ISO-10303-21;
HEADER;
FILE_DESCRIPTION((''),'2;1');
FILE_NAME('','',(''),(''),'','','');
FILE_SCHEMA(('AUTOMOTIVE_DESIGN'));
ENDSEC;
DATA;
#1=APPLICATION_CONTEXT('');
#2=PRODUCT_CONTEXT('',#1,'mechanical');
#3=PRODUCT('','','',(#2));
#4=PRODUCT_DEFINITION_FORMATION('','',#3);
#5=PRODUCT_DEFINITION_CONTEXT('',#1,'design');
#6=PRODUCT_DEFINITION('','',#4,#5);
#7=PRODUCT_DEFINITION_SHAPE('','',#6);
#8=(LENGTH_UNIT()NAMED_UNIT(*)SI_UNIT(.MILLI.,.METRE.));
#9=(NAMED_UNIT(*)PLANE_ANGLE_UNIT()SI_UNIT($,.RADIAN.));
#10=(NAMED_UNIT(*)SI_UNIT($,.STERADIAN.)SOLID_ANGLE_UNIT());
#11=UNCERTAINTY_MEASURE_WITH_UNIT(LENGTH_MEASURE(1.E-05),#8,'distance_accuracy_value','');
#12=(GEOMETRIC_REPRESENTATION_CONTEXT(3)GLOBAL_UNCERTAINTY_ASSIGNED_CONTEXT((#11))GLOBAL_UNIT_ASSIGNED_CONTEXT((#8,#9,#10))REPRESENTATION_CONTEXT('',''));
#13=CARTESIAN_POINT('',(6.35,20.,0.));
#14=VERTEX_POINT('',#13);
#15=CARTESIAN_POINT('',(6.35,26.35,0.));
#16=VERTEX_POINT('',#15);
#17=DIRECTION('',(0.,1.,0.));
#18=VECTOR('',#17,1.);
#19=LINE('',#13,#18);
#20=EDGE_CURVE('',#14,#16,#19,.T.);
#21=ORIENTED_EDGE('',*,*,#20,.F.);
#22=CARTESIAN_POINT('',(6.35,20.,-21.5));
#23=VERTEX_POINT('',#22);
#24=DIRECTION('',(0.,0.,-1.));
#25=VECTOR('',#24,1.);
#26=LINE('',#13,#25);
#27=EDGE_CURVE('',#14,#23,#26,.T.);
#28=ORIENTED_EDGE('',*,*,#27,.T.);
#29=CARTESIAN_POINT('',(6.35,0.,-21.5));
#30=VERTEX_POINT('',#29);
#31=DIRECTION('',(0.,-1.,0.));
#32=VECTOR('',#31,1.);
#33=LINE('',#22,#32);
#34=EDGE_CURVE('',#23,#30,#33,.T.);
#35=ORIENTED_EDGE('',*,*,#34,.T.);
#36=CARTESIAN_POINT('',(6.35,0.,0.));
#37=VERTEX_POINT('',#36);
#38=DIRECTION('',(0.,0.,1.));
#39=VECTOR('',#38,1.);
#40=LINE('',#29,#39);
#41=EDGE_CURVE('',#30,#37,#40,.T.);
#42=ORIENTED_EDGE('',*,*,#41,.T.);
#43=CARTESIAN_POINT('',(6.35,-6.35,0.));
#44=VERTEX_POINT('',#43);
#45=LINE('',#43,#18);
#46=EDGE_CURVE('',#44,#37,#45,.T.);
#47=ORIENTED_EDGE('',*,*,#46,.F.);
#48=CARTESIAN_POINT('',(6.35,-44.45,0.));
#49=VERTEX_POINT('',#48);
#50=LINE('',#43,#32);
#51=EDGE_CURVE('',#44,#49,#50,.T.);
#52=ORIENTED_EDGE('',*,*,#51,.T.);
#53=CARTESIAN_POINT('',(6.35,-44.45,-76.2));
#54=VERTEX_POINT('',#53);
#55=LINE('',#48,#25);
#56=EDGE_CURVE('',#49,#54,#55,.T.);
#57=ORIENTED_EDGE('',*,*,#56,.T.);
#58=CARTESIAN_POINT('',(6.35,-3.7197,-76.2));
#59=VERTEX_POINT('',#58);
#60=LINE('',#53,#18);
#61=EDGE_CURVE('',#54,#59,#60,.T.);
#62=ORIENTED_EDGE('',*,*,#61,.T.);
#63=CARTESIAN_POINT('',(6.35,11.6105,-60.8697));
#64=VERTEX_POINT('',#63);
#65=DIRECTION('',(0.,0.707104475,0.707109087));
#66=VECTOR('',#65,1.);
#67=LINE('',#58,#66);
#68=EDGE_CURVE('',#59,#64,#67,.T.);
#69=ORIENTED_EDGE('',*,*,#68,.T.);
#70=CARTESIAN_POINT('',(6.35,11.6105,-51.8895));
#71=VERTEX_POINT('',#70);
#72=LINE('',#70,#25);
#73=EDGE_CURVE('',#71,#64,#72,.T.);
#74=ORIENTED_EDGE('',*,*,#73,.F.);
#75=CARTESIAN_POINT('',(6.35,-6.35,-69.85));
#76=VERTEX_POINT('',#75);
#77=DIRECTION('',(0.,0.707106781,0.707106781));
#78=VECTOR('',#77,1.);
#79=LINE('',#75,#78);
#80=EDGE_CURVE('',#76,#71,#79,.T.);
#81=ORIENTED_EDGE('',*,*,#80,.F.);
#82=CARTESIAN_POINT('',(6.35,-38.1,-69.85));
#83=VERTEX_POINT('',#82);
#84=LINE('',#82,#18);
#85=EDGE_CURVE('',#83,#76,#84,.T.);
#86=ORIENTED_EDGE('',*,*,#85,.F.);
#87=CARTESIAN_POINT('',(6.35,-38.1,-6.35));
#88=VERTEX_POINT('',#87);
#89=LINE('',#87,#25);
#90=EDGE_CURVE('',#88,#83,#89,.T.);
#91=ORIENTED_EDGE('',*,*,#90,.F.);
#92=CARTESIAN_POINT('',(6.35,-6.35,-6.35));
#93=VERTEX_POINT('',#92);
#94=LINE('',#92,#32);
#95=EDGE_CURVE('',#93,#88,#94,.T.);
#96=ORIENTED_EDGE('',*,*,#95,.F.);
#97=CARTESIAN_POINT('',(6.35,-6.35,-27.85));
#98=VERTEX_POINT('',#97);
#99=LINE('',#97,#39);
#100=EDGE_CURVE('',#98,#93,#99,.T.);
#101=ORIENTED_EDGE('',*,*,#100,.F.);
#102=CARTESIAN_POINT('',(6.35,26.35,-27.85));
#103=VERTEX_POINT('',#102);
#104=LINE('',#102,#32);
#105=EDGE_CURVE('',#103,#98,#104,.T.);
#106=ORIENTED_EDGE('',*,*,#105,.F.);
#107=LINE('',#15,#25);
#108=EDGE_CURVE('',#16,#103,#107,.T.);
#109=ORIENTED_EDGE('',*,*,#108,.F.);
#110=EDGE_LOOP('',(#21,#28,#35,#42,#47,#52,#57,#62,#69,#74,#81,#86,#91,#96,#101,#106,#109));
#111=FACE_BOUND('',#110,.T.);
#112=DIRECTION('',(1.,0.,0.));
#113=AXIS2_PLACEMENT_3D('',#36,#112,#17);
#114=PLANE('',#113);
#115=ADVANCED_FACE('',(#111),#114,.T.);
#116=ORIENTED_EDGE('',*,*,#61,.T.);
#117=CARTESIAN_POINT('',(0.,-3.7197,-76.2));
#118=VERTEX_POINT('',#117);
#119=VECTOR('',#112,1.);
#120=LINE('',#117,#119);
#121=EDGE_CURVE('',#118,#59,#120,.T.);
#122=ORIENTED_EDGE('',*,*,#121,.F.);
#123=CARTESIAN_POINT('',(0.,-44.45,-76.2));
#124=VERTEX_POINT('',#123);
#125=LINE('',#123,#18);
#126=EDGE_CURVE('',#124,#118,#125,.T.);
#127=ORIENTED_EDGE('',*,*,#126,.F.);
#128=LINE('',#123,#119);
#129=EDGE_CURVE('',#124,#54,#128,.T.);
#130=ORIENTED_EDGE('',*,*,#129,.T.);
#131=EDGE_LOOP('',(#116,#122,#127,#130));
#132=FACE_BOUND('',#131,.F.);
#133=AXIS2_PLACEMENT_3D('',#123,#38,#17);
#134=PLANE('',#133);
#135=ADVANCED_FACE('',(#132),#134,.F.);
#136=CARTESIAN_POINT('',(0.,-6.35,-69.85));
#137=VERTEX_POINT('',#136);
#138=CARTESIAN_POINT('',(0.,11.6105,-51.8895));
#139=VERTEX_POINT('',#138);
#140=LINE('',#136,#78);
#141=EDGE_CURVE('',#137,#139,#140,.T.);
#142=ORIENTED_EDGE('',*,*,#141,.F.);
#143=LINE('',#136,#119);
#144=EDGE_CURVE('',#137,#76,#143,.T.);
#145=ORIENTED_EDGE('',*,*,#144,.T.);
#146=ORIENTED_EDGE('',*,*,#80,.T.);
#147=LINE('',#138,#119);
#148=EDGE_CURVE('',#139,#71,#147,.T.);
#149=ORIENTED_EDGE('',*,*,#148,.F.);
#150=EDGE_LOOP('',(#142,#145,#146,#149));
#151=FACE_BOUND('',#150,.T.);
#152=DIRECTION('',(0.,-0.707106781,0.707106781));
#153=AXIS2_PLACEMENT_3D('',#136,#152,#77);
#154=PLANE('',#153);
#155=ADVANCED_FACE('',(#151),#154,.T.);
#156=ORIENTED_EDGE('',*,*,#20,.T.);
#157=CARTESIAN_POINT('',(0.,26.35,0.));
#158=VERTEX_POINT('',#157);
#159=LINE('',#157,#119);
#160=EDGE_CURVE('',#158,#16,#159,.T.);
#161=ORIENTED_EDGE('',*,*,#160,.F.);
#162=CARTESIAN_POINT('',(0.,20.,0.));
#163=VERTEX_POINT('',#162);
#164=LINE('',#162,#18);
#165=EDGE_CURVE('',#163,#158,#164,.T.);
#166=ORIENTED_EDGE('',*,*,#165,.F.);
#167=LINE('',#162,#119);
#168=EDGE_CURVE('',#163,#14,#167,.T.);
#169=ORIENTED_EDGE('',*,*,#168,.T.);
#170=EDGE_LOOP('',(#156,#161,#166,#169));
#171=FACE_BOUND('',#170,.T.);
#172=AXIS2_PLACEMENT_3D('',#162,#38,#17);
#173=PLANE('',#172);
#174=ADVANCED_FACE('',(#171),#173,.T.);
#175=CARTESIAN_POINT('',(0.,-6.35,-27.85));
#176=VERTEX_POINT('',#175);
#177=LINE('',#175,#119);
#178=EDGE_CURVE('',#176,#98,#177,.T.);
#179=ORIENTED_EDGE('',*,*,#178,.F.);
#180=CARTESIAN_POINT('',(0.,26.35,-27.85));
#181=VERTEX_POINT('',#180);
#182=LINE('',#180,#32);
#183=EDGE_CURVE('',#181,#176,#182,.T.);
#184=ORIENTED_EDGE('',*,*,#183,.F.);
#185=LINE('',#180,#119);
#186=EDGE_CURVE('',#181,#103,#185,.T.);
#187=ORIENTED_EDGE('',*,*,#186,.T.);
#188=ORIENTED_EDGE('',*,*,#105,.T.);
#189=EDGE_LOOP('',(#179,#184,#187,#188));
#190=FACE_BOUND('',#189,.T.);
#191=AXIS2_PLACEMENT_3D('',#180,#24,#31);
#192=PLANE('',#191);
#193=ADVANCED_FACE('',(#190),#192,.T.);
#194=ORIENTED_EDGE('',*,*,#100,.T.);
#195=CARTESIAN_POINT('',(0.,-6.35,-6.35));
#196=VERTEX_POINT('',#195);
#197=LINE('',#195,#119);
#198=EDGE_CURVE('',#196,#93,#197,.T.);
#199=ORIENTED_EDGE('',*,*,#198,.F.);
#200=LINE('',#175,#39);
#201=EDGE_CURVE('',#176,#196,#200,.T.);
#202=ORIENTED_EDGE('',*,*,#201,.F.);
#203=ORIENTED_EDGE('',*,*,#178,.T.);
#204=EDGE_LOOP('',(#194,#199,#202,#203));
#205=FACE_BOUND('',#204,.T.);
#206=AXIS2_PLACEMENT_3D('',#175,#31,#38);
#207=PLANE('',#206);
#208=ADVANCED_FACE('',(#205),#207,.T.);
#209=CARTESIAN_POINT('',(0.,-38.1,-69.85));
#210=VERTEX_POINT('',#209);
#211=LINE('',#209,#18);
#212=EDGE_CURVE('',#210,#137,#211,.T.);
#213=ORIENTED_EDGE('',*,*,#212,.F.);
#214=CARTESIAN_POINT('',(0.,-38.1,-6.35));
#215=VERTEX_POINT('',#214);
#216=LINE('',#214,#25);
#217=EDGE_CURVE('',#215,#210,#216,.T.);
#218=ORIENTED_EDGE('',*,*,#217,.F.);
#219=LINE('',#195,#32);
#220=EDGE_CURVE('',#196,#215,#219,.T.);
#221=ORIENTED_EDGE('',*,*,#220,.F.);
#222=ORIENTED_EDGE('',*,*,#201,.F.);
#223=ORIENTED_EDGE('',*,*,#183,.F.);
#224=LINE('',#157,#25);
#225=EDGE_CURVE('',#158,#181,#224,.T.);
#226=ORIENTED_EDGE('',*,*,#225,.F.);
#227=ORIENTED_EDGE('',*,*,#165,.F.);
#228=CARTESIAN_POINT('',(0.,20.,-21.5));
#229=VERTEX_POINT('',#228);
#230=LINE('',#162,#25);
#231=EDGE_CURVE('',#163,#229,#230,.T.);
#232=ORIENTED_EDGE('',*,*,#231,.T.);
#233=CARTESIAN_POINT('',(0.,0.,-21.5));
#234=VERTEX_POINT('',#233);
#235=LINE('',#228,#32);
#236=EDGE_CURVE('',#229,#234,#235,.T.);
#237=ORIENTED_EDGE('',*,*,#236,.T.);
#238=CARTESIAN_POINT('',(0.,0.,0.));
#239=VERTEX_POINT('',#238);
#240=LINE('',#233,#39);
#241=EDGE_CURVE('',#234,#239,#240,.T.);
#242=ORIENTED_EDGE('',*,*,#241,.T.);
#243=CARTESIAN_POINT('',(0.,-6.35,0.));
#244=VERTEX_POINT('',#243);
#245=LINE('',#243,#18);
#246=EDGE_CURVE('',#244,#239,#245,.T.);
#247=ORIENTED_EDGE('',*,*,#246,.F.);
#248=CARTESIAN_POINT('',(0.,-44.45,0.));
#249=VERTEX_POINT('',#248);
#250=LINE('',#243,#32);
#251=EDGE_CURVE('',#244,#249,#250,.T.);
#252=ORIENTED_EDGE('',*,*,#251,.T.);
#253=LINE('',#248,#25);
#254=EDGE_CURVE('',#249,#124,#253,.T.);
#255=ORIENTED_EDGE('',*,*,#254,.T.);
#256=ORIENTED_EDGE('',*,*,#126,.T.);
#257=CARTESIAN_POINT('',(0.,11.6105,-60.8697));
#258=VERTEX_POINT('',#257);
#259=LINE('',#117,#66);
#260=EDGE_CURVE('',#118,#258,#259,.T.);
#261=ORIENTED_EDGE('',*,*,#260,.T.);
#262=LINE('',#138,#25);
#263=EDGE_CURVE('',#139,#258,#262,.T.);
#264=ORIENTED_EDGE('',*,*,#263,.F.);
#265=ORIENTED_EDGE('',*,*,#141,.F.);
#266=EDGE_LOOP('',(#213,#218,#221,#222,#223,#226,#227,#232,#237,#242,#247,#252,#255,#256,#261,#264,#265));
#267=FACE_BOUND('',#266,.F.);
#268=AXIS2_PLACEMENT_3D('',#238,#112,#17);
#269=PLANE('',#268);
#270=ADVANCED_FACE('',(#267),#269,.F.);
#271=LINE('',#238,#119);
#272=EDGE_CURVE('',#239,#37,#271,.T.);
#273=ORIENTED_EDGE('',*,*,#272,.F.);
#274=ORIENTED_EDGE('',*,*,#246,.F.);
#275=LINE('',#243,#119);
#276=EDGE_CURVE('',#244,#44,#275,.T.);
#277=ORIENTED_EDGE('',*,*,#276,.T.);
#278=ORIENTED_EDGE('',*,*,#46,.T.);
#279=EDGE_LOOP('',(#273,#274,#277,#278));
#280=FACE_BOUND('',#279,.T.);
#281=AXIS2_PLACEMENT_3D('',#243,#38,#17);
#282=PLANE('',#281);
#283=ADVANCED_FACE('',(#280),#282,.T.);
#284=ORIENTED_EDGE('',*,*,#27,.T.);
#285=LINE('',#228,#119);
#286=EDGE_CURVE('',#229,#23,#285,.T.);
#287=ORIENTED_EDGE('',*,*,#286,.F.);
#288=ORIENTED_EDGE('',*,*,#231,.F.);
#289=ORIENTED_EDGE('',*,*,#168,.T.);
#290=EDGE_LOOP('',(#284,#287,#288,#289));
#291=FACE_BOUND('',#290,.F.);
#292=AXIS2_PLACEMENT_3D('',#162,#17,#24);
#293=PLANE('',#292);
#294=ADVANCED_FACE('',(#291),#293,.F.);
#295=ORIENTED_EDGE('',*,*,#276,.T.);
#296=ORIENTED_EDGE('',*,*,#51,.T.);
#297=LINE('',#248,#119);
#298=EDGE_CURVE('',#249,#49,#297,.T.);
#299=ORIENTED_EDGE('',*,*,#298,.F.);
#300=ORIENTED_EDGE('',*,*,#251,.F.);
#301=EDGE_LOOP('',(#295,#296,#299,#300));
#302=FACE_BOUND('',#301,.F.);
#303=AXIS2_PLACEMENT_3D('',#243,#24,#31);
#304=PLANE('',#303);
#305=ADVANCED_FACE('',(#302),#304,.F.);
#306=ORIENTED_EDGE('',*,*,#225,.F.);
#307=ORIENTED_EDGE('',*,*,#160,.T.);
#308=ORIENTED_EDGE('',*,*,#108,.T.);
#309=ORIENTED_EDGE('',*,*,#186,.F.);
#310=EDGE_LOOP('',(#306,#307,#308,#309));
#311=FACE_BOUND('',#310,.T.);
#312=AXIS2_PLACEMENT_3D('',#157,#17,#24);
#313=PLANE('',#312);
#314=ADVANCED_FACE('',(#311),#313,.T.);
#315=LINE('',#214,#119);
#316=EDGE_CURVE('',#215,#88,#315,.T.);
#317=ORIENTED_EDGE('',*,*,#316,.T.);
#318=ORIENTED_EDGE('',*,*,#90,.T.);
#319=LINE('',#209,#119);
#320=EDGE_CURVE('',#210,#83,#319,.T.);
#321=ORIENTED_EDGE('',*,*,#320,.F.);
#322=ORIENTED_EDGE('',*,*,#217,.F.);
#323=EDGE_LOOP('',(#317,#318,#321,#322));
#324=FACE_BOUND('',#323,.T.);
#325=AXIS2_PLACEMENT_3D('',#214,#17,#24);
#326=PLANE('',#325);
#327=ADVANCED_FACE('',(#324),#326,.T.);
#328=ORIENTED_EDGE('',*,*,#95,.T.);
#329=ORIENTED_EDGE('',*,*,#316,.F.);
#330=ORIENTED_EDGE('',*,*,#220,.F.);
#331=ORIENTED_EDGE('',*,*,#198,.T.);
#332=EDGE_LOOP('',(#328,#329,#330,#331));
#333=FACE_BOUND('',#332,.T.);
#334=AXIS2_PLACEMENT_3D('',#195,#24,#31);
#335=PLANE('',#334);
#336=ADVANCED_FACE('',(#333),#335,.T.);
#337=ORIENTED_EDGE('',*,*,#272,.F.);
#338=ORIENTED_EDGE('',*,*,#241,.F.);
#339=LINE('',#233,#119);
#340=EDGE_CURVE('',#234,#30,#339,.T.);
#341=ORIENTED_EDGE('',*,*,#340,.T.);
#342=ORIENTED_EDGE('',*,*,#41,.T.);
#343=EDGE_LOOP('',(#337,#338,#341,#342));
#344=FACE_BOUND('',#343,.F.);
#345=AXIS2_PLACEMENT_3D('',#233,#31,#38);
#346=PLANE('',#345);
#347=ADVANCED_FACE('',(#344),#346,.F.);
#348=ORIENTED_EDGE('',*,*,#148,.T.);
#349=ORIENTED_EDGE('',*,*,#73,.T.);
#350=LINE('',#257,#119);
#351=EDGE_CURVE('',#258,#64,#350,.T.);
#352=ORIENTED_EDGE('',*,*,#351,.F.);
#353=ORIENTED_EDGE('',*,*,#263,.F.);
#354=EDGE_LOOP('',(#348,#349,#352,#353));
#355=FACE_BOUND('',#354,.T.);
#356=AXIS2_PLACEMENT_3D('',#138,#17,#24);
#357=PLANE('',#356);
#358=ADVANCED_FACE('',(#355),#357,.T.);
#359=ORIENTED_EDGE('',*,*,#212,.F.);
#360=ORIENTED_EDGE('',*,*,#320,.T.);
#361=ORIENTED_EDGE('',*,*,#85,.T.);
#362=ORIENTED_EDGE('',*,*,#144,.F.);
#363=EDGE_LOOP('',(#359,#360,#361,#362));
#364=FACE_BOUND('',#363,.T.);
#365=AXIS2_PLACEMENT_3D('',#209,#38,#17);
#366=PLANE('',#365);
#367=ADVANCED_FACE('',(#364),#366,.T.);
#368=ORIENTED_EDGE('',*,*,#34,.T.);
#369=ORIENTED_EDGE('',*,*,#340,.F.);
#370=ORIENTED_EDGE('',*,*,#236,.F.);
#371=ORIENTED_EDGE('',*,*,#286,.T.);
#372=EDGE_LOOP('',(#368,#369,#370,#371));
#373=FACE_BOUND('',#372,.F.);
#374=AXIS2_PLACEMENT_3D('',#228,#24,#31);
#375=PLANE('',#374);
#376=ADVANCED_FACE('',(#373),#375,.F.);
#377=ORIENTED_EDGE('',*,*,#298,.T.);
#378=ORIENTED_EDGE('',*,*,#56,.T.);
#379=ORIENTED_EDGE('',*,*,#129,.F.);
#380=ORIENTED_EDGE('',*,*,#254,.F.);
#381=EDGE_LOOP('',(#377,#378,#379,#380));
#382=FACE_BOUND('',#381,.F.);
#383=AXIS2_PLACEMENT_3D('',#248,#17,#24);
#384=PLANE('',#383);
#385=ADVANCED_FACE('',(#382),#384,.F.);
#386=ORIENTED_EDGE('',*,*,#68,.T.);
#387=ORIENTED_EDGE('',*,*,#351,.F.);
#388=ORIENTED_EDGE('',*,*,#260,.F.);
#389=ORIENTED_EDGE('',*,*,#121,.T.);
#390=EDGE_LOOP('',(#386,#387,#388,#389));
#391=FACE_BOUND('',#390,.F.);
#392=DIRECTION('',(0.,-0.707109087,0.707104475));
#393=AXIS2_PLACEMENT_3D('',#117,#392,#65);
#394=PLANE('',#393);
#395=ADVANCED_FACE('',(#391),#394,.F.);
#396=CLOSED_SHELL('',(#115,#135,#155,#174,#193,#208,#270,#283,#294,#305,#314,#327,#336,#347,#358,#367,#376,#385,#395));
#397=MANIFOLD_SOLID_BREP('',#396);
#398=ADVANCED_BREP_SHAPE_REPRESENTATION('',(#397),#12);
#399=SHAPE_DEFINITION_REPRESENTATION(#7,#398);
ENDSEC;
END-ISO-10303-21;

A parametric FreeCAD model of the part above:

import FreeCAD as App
import Part
import Sketcher

V = App.Vector
Q = App.Units.Quantity

doc = App.newDocument("Part")
body = doc.addObject("PartDesign::Body", "Body")

sketch1 = body.newObject("Sketcher::SketchObject", "Sketch")
sketch1.AttachmentSupport = (doc.getObject("YZ_Plane"), [""])
sketch1.MapMode = "FlatFace"
sketch1.addGeometry([
    Part.LineSegment(V(26, 0, 0), V(20, 0, 0)),
    Part.LineSegment(V(20, 0, 0), V(20, -22, 0)),
    Part.LineSegment(V(20, -22, 0), V(0, -22, 0)),
    Part.LineSegment(V(0, -22, 0), V(0, 0, 0)),
    Part.LineSegment(V(0, 0, 0), V(-44, 0, 0)),
    Part.LineSegment(V(-44, 0, 0), V(-44, -76, 0)),
    Part.LineSegment(V(-44, -76, 0), V(-4, -76, 0)),
    Part.LineSegment(V(-4, -76, 0), V(12, -61, 0)),
    Part.LineSegment(V(12, -61, 0), V(12, -52, 0)),
    Part.LineSegment(V(12, -52, 0), V(-6, -70, 0)),
    Part.LineSegment(V(-6, -70, 0), V(-38, -70, 0)),
    Part.LineSegment(V(-38, -70, 0), V(-38, -6, 0)),
    Part.LineSegment(V(-38, -6, 0), V(-6, -6, 0)),
    Part.LineSegment(V(-6, -6, 0), V(-6, -28, 0)),
    Part.LineSegment(V(-6, -28, 0), V(26, -28, 0)),
    Part.LineSegment(V(26, -28, 0), V(26, 0, 0)),
], False)
sketch1.addConstraint([
    Sketcher.Constraint("Coincident", 0, 2, 1, 1),
    Sketcher.Constraint("Coincident", 1, 2, 2, 1),
    Sketcher.Constraint("Coincident", 2, 2, 3, 1),
    Sketcher.Constraint("Coincident", 3, 2, 4, 1),
    Sketcher.Constraint("Coincident", 4, 2, 5, 1),
    Sketcher.Constraint("Coincident", 5, 2, 6, 1),
    Sketcher.Constraint("Coincident", 6, 2, 7, 1),
    Sketcher.Constraint("Coincident", 7, 2, 8, 1),
    Sketcher.Constraint("Coincident", 8, 2, 9, 1),
    Sketcher.Constraint("Coincident", 9, 2, 10, 1),
    Sketcher.Constraint("Coincident", 10, 2, 11, 1),
    Sketcher.Constraint("Coincident", 11, 2, 12, 1),
    Sketcher.Constraint("Coincident", 12, 2, 13, 1),
    Sketcher.Constraint("Coincident", 13, 2, 14, 1),
    Sketcher.Constraint("Coincident", 14, 2, 15, 1),
    Sketcher.Constraint("Coincident", 15, 2, 0, 1),
    Sketcher.Constraint("Horizontal", 0),
    Sketcher.Constraint("Vertical", 1),
    Sketcher.Constraint("Horizontal", 2),
    Sketcher.Constraint("Vertical", 3),
    Sketcher.Constraint("Horizontal", 4),
    Sketcher.Constraint("Vertical", 5),
    Sketcher.Constraint("Horizontal", 6),
    Sketcher.Constraint("Vertical", 8),
    Sketcher.Constraint("Horizontal", 10),
    Sketcher.Constraint("Vertical", 11),
    Sketcher.Constraint("Horizontal", 12),
    Sketcher.Constraint("Vertical", 13),
    Sketcher.Constraint("Horizontal", 14),
    Sketcher.Constraint("Vertical", 15),
    Sketcher.Constraint("Coincident", 3, 2, -1, 1),
    Sketcher.Constraint("PointOnObject", 0, 2, -1),
    Sketcher.Constraint("Parallel", 7, 9),
    Sketcher.Constraint("Vertical", 9, 2, 12, 2),
    Sketcher.Constraint("Equal", 3, 13),
    Sketcher.Constraint("DistanceY", 5, 2, 5, 1, Q("3 in")),
    Sketcher.Constraint("Distance", 9, Q("1 in")),
    Sketcher.Constraint("Angle", 9, Q("-135 deg")),
    Sketcher.Constraint("DistanceX", 0, 2, 0, 1, Q("0.25 in")),
    Sketcher.Constraint("DistanceX", 10, 2, -1, 1, Q("1.5 in")),
    Sketcher.Constraint("DistanceX", 5, 2, 9, 2, Q("1.5 in")),
    Sketcher.Constraint("DistanceX", 9, 2, -1, 1, Q("0.25 in")),
    Sketcher.Constraint("DistanceY", 11, 2, -1, 1, Q("0.25 in")),
    Sketcher.Constraint("DistanceY", 6, 2, 9, 2, Q("0.25 in")),
    Sketcher.Constraint("DistanceX", 2, 2, 2, 1, Q("0.7874 in")),
    Sketcher.Constraint("DistanceY", 1, 2, 1, 1, Q("21.5 mm")),
    Sketcher.Constraint("DistanceY", 7, 2, 1, 2, Q("1.55 in")),
])
pad1 = body.newObject("PartDesign::Pad", "Pad")
pad1.Profile = sketch1
pad1.Length = Q("0.25 in")

doc.recompute()
